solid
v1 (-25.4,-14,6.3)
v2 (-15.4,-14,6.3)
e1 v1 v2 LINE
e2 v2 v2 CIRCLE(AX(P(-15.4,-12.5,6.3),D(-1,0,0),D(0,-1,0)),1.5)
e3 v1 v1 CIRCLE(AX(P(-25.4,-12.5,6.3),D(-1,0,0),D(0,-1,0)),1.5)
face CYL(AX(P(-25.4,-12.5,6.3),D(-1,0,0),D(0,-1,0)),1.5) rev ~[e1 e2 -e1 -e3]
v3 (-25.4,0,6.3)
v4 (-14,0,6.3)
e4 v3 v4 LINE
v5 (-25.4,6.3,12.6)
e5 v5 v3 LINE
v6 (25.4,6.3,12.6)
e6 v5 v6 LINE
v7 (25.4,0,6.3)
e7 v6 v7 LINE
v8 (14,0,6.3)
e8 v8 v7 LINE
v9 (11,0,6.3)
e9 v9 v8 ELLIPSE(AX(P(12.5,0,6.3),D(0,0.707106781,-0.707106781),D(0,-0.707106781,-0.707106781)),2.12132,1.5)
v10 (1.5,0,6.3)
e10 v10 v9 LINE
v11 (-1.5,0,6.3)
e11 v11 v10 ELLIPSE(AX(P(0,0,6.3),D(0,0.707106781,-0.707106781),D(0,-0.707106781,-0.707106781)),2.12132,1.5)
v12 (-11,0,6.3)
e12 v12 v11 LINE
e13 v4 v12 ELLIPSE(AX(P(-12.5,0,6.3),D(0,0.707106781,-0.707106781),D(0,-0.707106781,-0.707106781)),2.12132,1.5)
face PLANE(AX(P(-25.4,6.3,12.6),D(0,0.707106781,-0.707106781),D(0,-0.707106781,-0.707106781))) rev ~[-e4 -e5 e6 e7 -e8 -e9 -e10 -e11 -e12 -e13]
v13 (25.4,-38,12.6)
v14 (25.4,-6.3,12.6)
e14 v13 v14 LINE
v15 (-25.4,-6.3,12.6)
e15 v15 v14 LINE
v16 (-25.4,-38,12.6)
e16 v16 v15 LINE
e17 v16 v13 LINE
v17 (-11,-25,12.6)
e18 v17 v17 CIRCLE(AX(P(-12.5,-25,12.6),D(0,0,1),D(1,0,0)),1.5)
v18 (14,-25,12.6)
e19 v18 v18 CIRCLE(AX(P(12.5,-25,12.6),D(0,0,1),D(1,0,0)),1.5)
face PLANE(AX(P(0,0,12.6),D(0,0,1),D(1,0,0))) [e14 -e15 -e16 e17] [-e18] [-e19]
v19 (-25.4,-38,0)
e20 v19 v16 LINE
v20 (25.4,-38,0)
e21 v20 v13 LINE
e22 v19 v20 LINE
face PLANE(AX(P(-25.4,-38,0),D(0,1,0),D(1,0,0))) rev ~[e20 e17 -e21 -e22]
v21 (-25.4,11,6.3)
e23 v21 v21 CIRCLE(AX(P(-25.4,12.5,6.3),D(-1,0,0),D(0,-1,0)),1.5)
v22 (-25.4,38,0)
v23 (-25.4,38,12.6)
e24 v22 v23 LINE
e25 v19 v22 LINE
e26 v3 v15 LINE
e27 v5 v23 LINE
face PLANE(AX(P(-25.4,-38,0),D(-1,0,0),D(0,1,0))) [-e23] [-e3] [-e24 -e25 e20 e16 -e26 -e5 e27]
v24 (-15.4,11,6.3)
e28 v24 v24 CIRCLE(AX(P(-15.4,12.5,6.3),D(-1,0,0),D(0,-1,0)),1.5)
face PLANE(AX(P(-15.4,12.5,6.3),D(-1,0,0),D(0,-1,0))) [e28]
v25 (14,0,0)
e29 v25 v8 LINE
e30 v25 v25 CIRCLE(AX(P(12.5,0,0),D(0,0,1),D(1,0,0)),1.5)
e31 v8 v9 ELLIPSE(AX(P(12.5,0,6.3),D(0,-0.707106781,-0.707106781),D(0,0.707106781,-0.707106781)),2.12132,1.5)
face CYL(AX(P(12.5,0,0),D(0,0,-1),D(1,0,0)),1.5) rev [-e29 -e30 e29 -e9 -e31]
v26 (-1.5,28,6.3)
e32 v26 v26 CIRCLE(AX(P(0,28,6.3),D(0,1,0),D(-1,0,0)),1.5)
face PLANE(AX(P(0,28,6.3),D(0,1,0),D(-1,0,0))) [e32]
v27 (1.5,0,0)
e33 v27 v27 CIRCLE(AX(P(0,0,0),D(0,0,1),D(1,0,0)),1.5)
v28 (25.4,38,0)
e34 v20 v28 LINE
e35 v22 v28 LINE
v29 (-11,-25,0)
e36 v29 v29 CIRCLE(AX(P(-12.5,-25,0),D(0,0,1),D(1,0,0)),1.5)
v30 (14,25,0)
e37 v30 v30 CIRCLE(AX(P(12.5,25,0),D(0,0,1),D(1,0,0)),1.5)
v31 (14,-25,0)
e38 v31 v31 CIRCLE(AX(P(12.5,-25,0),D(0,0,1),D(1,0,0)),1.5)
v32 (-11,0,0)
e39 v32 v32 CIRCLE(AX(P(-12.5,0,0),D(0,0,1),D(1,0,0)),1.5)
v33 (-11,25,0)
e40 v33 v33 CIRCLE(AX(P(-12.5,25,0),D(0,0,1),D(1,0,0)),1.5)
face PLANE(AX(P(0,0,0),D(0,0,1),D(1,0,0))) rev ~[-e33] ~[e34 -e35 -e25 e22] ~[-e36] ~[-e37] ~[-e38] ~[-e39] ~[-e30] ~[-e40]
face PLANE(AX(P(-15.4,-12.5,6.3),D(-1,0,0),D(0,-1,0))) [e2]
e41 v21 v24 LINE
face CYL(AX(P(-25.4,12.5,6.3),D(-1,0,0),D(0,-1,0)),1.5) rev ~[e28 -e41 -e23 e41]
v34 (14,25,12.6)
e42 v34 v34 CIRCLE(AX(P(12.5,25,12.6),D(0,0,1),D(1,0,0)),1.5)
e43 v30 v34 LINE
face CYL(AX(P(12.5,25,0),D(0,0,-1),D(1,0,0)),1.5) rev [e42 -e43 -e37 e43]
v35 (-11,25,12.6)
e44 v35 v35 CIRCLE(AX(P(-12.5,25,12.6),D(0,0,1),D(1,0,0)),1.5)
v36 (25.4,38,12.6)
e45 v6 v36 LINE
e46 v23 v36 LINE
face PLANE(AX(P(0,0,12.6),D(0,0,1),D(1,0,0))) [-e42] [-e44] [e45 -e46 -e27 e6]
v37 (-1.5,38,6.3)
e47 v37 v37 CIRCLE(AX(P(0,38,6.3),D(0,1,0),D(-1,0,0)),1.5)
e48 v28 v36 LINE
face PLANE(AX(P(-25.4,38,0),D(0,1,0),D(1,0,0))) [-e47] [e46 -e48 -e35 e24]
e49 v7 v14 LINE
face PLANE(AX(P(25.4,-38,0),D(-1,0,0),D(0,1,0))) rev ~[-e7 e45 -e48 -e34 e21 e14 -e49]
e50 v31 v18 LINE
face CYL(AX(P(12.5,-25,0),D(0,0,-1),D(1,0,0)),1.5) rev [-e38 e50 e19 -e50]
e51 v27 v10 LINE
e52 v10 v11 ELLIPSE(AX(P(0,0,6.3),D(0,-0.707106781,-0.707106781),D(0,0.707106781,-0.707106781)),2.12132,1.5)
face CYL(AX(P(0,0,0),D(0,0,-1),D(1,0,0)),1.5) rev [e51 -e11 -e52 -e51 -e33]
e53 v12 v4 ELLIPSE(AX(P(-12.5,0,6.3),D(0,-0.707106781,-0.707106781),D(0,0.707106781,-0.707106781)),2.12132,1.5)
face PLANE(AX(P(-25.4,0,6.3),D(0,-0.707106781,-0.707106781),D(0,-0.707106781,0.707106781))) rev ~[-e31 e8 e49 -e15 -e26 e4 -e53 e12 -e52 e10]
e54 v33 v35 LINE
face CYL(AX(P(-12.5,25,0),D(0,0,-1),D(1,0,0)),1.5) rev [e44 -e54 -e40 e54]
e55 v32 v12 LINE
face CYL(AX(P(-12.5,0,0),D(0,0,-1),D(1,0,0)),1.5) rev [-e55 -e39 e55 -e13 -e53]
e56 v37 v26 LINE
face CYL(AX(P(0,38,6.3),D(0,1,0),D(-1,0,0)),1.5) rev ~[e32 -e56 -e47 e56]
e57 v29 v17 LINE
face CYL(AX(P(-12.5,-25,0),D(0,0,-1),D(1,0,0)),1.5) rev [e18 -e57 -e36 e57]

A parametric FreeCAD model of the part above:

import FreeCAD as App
import Part
import Sketcher
Q = App.Units.Quantity

doc = App.newDocument("Part")
body = doc.addObject("PartDesign::Body", "Body")

sketch1 = body.newObject("Sketcher::SketchObject", "Sketch")
sketch1.AttachmentSupport = (doc.getObject("XY_Plane"), [""])
sketch1.MapMode = "FlatFace"
sketch1.addGeometry(Part.LineSegment(App.Vector(-25.4, 38, 0), App.Vector(-25.4, -38, 0)), False)
sketch1.addGeometry(Part.LineSegment(App.Vector(-25.4, -38, 0), App.Vector(25.4, -38, 0)), False)
sketch1.addGeometry(Part.LineSegment(App.Vector(25.4, -38, 0), App.Vector(25.4, 38, 0)), False)
sketch1.addGeometry(Part.LineSegment(App.Vector(25.4, 38, 0), App.Vector(-25.4, 38, 0)), False)
sketch1.addGeometry(Part.Circle(App.Vector(-12.5, -25, 0), App.Vector(0, 0, 1), 1.5), False)
sketch1.addGeometry(Part.Circle(App.Vector(12.5, -25, 0), App.Vector(0, 0, 1), 1.5), False)
sketch1.addGeometry(Part.Circle(App.Vector(-12.5, 0, 0), App.Vector(0, 0, 1), 1.5), False)
sketch1.addGeometry(Part.Circle(App.Vector(-12.5, 25, 0), App.Vector(0, 0, 1), 1.5), False)
sketch1.addGeometry(Part.Circle(App.Vector(0, 0, 0), App.Vector(0, 0, 1), 1.5), False)
sketch1.addGeometry(Part.Circle(App.Vector(12.5, 0, 0), App.Vector(0, 0, 1), 1.5), False)
sketch1.addGeometry(Part.Circle(App.Vector(12.5, 25, 0), App.Vector(0, 0, 1), 1.5), False)
sketch1.addConstraint(Sketcher.Constraint("Coincident", 0, 2, 1, 1))
sketch1.addConstraint(Sketcher.Constraint("Coincident", 1, 2, 2, 1))
sketch1.addConstraint(Sketcher.Constraint("Coincident", 2, 2, 3, 1))
sketch1.addConstraint(Sketcher.Constraint("Coincident", 3, 2, 0, 1))
sketch1.addConstraint(Sketcher.Constraint("Vertical", 0))
sketch1.addConstraint(Sketcher.Constraint("Horizontal", 1))
sketch1.addConstraint(Sketcher.Constraint("Vertical", 2))
sketch1.addConstraint(Sketcher.Constraint("Horizontal", 3))
sketch1.addConstraint(Sketcher.Constraint("Coincident", 8, 3, -1, 1))
sketch1.addConstraint(Sketcher.Constraint("Equal", 4, 5))
sketch1.addConstraint(Sketcher.Constraint("Equal", 5, 6))
sketch1.addConstraint(Sketcher.Constraint("Equal", 6, 7))
sketch1.addConstraint(Sketcher.Constraint("Equal", 7, 8))
sketch1.addConstraint(Sketcher.Constraint("Equal", 8, 9))
sketch1.addConstraint(Sketcher.Constraint("Equal", 9, 10))
sketch1.addConstraint(Sketcher.Constraint("Symmetric", 5, 3, 7, 3, -1, 1))
sketch1.addConstraint(Sketcher.Constraint("Symmetric", 6, 3, 9, 3, -1, 1))
sketch1.addConstraint(Sketcher.Constraint("Symmetric", 4, 3, 10, 3, -1, 1))
sketch1.addConstraint(Sketcher.Constraint("Symmetric", 0, 2, 2, 2, -1, 1))
sketch1.addConstraint(Sketcher.Constraint("Symmetric", 4, 3, 5, 3, -2))
sketch1.addConstraint(Sketcher.Constraint("PointOnObject", 6, 3, -1))
sketch1.addConstraint(Sketcher.Constraint("Vertical", 4, 3, 6, 3))
sketch1.addConstraint(Sketcher.Constraint("Diameter", 4, Q("3 mm")))
sketch1.addConstraint(Sketcher.Constraint("DistanceY", 0, 2, 0, 1, Q("76 mm")))
sketch1.addConstraint(Sketcher.Constraint("DistanceX", 1, 1, 1, 2, Q("50.8 mm")))
sketch1.addConstraint(Sketcher.Constraint("DistanceY", 4, 3, -1, 1, Q("25 mm")))
sketch1.addConstraint(Sketcher.Constraint("DistanceX", 4, 3, 5, 3, Q("25 mm")))
pad1 = body.newObject("PartDesign::Pad", "Pad")
pad1.Profile = sketch1
pad1.Length = 12.6

sketch2 = body.newObject("Sketcher::SketchObject", "Sketch001")
sketch2.AttachmentSupport = (doc.getObject("YZ_Plane"), [""])
sketch2.MapMode = "FlatFace"
sketch2.AttachmentOffset = App.Placement(App.Vector(0, 0, -25.4), App.Rotation())
sketch2.addGeometry(Part.Circle(App.Vector(12.5, 6.3, 0), App.Vector(0, 0, 1), 1.5), False)
sketch2.addGeometry(Part.Circle(App.Vector(-12.5, 6.3, 0), App.Vector(0, 0, 1), 1.5), False)
sketch2.addConstraint(Sketcher.Constraint("Equal", 0, 1))
sketch2.addConstraint(Sketcher.Constraint("Symmetric", 0, 3, 1, 3, -2))
sketch2.addConstraint(Sketcher.Constraint("Diameter", 0, Q("3 mm")))
sketch2.addConstraint(Sketcher.Constraint("DistanceX", 1, 3, 0, 3, Q("25 mm")))
sketch2.addConstraint(Sketcher.Constraint("DistanceY", -1, 1, 0, 3, Q("6.3 mm")))
pocket1 = body.newObject("PartDesign::Pocket", "Pocket")
pocket1.Profile = sketch2
pocket1.Length = 10
pocket1.Reversed = True

sketch3 = body.newObject("Sketcher::SketchObject", "Sketch002")
sketch3.AttachmentSupport = (doc.getObject("YZ_Plane"), [""])
sketch3.MapMode = "FlatFace"
sketch3.AttachmentOffset = App.Placement(App.Vector(0, 0, -25.4), App.Rotation())
sketch3.addGeometry(Part.LineSegment(App.Vector(-6, 13, 0), App.Vector(6, 13, 0)), False)
sketch3.addGeometry(Part.LineSegment(App.Vector(6, 13, 0), App.Vector(0, 6, 0)), False)
sketch3.addGeometry(Part.LineSegment(App.Vector(0, 6, 0), App.Vector(-6, 13, 0)), False)
sketch3.addConstraint(Sketcher.Constraint("Coincident", 0, 2, 1, 1))
sketch3.addConstraint(Sketcher.Constraint("Coincident", 1, 2, 2, 1))
sketch3.addConstraint(Sketcher.Constraint("Coincident", 2, 2, 0, 1))
sketch3.addConstraint(Sketcher.Constraint("Horizontal", 0))
sketch3.addConstraint(Sketcher.Constraint("PointOnObject", 1, 2, -2))
sketch3.addConstraint(Sketcher.Constraint("Perpendicular", 1, 2))
sketch3.addConstraint(Sketcher.Constraint("Equal", 1, 2))
sketch3.addConstraint(Sketcher.Constraint("DistanceX", 0, 1, 0, 2, Q("12.6 mm")))
sketch3.addConstraint(Sketcher.Constraint("DistanceY", -1, 1, 0, 2, Q("12.6 mm")))
pocket2 = body.newObject("PartDesign::Pocket", "Pocket001")
pocket2.Profile = sketch3
pocket2.Length = 50.8
pocket2.Reversed = True

sketch4 = body.newObject("Sketcher::SketchObject", "Sketch003")
sketch4.AttachmentSupport = (doc.getObject("XY_Plane"), [""])
sketch4.MapMode = "FlatFace"
sketch4.addGeometry(Part.Circle(App.Vector(12.5, 0, 0), App.Vector(0, 0, 1), 1.5), False)
sketch4.addGeometry(Part.Circle(App.Vector(0, 0, 0), App.Vector(0, 0, 1), 1.5), False)
sketch4.addGeometry(Part.Circle(App.Vector(-12.5, 0, 0), App.Vector(0, 0, 1), 1.5), False)
sketch4.addConstraint(Sketcher.Constraint("Coincident", 1, 3, -1, 1))
sketch4.addConstraint(Sketcher.Constraint("Equal", 0, 1))
sketch4.addConstraint(Sketcher.Constraint("Equal", 1, 2))
sketch4.addConstraint(Sketcher.Constraint("Symmetric", 0, 3, 2, 3, -1, 1))
sketch4.addConstraint(Sketcher.Constraint("PointOnObject", 0, 3, -1))
sketch4.addConstraint(Sketcher.Constraint("Diameter", 0, Q("3 mm")))
sketch4.addConstraint(Sketcher.Constraint("DistanceX", 2, 3, 0, 3, Q("25 mm")))
pocket3 = body.newObject("PartDesign::Pocket", "Pocket002")
pocket3.Profile = sketch4
pocket3.Length = 12
pocket3.Reversed = True

sketch5 = body.newObject("Sketcher::SketchObject", "Sketch004")
sketch5.AttachmentSupport = (doc.getObject("XZ_Plane"), [""])
sketch5.MapMode = "FlatFace"
sketch5.AttachmentOffset = App.Placement(App.Vector(0, 0, -38), App.Rotation())
sketch5.addGeometry(Part.Circle(App.Vector(0, 6.3, 0), App.Vector(0, 0, 1), 1.5), False)
sketch5.addConstraint(Sketcher.Constraint("PointOnObject", 0, 3, -2))
sketch5.addConstraint(Sketcher.Constraint("Diameter", 0, Q("3 mm")))
sketch5.addConstraint(Sketcher.Constraint("DistanceY", -1, 1, 0, 3, Q("6.3 mm")))
pocket4 = body.newObject("PartDesign::Pocket", "Pocket003")
pocket4.Profile = sketch5
pocket4.Length = 10
pocket4.Reversed = True

doc.recompute()
